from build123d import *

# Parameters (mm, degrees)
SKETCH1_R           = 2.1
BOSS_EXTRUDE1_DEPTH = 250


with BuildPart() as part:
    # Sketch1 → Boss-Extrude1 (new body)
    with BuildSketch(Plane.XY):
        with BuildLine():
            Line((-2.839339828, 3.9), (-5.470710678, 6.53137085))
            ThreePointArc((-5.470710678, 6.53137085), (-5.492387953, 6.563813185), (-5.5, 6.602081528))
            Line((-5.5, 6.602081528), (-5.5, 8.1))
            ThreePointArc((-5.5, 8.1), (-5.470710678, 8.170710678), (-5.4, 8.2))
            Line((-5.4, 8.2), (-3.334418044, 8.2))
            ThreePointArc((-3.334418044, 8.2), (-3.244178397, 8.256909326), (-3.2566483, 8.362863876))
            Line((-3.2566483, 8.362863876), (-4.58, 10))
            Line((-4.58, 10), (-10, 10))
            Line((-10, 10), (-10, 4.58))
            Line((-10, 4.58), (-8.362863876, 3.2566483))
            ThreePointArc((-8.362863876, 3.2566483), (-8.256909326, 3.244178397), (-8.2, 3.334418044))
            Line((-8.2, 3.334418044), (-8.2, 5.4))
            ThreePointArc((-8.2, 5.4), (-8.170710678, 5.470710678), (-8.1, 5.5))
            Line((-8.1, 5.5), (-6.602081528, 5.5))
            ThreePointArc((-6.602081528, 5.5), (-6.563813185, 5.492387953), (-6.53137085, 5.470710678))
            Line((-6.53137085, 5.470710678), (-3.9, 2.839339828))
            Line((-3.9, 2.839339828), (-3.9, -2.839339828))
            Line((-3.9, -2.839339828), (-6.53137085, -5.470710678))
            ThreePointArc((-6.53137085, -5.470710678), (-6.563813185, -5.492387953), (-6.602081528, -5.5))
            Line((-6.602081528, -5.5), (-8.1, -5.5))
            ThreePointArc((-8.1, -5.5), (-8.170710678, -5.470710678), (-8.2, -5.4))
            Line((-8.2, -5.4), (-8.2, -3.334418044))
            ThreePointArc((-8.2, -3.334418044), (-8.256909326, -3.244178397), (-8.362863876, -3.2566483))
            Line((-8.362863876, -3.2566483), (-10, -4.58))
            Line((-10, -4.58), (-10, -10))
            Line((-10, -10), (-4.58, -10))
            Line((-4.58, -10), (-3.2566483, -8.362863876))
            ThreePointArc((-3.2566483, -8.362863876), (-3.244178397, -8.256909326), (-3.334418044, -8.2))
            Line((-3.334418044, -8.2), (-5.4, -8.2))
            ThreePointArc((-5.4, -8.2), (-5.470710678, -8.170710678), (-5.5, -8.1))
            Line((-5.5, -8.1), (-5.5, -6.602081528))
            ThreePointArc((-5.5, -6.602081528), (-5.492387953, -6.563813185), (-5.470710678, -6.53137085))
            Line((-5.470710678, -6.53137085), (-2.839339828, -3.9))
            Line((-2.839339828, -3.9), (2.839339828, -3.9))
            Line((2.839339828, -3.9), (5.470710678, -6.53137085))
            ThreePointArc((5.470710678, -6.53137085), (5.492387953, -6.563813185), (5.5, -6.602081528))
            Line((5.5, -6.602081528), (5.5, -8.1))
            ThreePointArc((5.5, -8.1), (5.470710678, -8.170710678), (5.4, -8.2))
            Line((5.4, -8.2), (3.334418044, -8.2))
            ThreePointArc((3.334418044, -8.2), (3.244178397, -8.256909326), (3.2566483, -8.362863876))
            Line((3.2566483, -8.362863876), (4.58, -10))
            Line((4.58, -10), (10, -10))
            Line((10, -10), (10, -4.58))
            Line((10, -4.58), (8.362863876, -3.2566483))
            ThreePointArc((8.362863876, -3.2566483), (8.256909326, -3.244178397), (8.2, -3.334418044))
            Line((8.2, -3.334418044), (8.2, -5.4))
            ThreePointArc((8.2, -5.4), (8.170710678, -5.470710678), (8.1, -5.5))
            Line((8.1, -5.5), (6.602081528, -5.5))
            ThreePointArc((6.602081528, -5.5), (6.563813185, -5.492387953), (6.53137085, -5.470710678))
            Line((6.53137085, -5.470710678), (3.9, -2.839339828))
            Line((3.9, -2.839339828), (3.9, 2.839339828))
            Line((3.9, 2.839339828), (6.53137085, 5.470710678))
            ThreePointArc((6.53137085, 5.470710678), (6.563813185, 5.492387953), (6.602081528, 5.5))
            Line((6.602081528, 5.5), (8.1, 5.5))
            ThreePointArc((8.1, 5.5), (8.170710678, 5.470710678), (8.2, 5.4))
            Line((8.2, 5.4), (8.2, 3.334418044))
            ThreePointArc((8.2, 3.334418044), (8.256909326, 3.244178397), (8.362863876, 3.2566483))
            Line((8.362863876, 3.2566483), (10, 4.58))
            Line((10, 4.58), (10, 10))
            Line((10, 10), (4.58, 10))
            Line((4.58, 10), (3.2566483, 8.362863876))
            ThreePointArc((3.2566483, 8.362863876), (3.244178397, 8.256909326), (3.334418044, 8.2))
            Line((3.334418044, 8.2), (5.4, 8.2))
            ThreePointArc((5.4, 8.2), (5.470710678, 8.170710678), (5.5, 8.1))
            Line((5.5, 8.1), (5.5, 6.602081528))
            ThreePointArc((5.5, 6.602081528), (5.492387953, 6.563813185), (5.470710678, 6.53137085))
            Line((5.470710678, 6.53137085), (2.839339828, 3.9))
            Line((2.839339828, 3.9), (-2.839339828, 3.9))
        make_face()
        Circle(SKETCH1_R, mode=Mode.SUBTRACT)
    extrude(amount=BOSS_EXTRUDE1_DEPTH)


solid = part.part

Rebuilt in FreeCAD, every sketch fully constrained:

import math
import FreeCAD as App
import Part
import Sketcher

doc = App.newDocument("Part")
body = doc.addObject("PartDesign::Body", "Body")

# Sketch on XY plane
sketch1 = body.newObject("Sketcher::SketchObject", "Sketch")
sketch1.AttachmentSupport = (doc.getObject("XY_Plane"), [""])
sketch1.MapMode = "FlatFace"
sketch1.addGeometry([
    Part.LineSegment(App.Vector(-2.84, 3.9, 0), App.Vector(-5.47, 6.53, 0)),  # 0
    Part.ArcOfCircle(Part.Circle(App.Vector(-5.4, 6.6, 0), App.Vector(0, 0, 1), 0.1), math.radians(-180), math.radians(-135)),  # 1
    Part.LineSegment(App.Vector(-5.5, 6.6, 0), App.Vector(-5.5, 8.1, 0)),  # 2
    Part.ArcOfCircle(Part.Circle(App.Vector(-5.4, 8.1, 0), App.Vector(0, 0, 1), 0.1), math.radians(90), math.radians(180)),  # 3
    Part.LineSegment(App.Vector(-5.4, 8.2, 0), App.Vector(-3.33, 8.2, 0)),  # 4
    Part.ArcOfCircle(Part.Circle(App.Vector(-3.33, 8.3, 0), App.Vector(0, 0, 1), 0.1), math.radians(-90), math.radians(39)),  # 5
    Part.LineSegment(App.Vector(-3.26, 8.36, 0), App.Vector(-4.58, 10, 0)),  # 6
    Part.LineSegment(App.Vector(-4.58, 10, 0), App.Vector(-10, 10, 0)),  # 7
    Part.LineSegment(App.Vector(-10, 10, 0), App.Vector(-10, 4.58, 0)),  # 8
    Part.LineSegment(App.Vector(-10, 4.58, 0), App.Vector(-8.36, 3.26, 0)),  # 9
    Part.ArcOfCircle(Part.Circle(App.Vector(-8.3, 3.33, 0), App.Vector(0, 0, 1), 0.1), math.radians(-129), math.radians(0)),  # 10
    Part.LineSegment(App.Vector(-8.2, 3.33, 0), App.Vector(-8.2, 5.4, 0)),  # 11
    Part.ArcOfCircle(Part.Circle(App.Vector(-8.1, 5.4, 0), App.Vector(0, 0, 1), 0.1), math.radians(90), math.radians(180)),  # 12
    Part.LineSegment(App.Vector(-8.1, 5.5, 0), App.Vector(-6.6, 5.5, 0)),  # 13
    Part.ArcOfCircle(Part.Circle(App.Vector(-6.6, 5.4, 0), App.Vector(0, 0, 1), 0.1), math.radians(45), math.radians(90)),  # 14
    Part.LineSegment(App.Vector(-6.53, 5.47, 0), App.Vector(-3.9, 2.84, 0)),  # 15
    Part.LineSegment(App.Vector(-3.9, 2.84, 0), App.Vector(-3.9, -2.84, 0)),  # 16
    Part.LineSegment(App.Vector(-3.9, -2.84, 0), App.Vector(-6.53, -5.47, 0)),  # 17
    Part.ArcOfCircle(Part.Circle(App.Vector(-6.6, -5.4, 0), App.Vector(0, 0, 1), 0.1), math.radians(-90), math.radians(-45)),  # 18
    Part.LineSegment(App.Vector(-6.6, -5.5, 0), App.Vector(-8.1, -5.5, 0)),  # 19
    Part.ArcOfCircle(Part.Circle(App.Vector(-8.1, -5.4, 0), App.Vector(0, 0, 1), 0.1), math.radians(180), math.radians(270)),  # 20
    Part.LineSegment(App.Vector(-8.2, -5.4, 0), App.Vector(-8.2, -3.33, 0)),  # 21
    Part.ArcOfCircle(Part.Circle(App.Vector(-8.3, -3.33, 0), App.Vector(0, 0, 1), 0.1), math.radians(0), math.radians(129)),  # 22
    Part.LineSegment(App.Vector(-8.36, -3.26, 0), App.Vector(-10, -4.58, 0)),  # 23
    Part.LineSegment(App.Vector(-10, -4.58, 0), App.Vector(-10, -10, 0)),  # 24
    Part.LineSegment(App.Vector(-10, -10, 0), App.Vector(-4.58, -10, 0)),  # 25
    Part.LineSegment(App.Vector(-4.58, -10, 0), App.Vector(-3.26, -8.36, 0)),  # 26
    Part.ArcOfCircle(Part.Circle(App.Vector(-3.33, -8.3, 0), App.Vector(0, 0, 1), 0.1), math.radians(-39), math.radians(90)),  # 27
    Part.LineSegment(App.Vector(-3.33, -8.2, 0), App.Vector(-5.4, -8.2, 0)),  # 28
    Part.ArcOfCircle(Part.Circle(App.Vector(-5.4, -8.1, 0), App.Vector(0, 0, 1), 0.1), math.radians(180), math.radians(270)),  # 29
    Part.LineSegment(App.Vector(-5.5, -8.1, 0), App.Vector(-5.5, -6.6, 0)),  # 30
    Part.ArcOfCircle(Part.Circle(App.Vector(-5.4, -6.6, 0), App.Vector(0, 0, 1), 0.1), math.radians(135), math.radians(180)),  # 31
    Part.LineSegment(App.Vector(-5.47, -6.53, 0), App.Vector(-2.84, -3.9, 0)),  # 32
    Part.LineSegment(App.Vector(-2.84, -3.9, 0), App.Vector(2.84, -3.9, 0)),  # 33
    Part.LineSegment(App.Vector(2.84, -3.9, 0), App.Vector(5.47, -6.53, 0)),  # 34
    Part.ArcOfCircle(Part.Circle(App.Vector(5.4, -6.6, 0), App.Vector(0, 0, 1), 0.1), math.radians(0), math.radians(45)),  # 35
    Part.LineSegment(App.Vector(5.5, -6.6, 0), App.Vector(5.5, -8.1, 0)),  # 36
    Part.ArcOfCircle(Part.Circle(App.Vector(5.4, -8.1, 0), App.Vector(0, 0, 1), 0.1), math.radians(-90), math.radians(0)),  # 37
    Part.LineSegment(App.Vector(5.4, -8.2, 0), App.Vector(3.33, -8.2, 0)),  # 38
    Part.ArcOfCircle(Part.Circle(App.Vector(3.33, -8.3, 0), App.Vector(0, 0, 1), 0.1), math.radians(90), math.radians(219)),  # 39
    Part.LineSegment(App.Vector(3.26, -8.36, 0), App.Vector(4.58, -10, 0)),  # 40
    Part.LineSegment(App.Vector(4.58, -10, 0), App.Vector(10, -10, 0)),  # 41
    Part.LineSegment(App.Vector(10, -10, 0), App.Vector(10, -4.58, 0)),  # 42
    Part.LineSegment(App.Vector(10, -4.58, 0), App.Vector(8.36, -3.26, 0)),  # 43
    Part.ArcOfCircle(Part.Circle(App.Vector(8.3, -3.33, 0), App.Vector(0, 0, 1), 0.1), math.radians(51), math.radians(180)),  # 44
    Part.LineSegment(App.Vector(8.2, -3.33, 0), App.Vector(8.2, -5.4, 0)),  # 45
    Part.ArcOfCircle(Part.Circle(App.Vector(8.1, -5.4, 0), App.Vector(0, 0, 1), 0.1), math.radians(-90), math.radians(0)),  # 46
    Part.LineSegment(App.Vector(8.1, -5.5, 0), App.Vector(6.6, -5.5, 0)),  # 47
    Part.ArcOfCircle(Part.Circle(App.Vector(6.6, -5.4, 0), App.Vector(0, 0, 1), 0.1), math.radians(-135), math.radians(-90)),  # 48
    Part.LineSegment(App.Vector(6.53, -5.47, 0), App.Vector(3.9, -2.84, 0)),  # 49
    Part.LineSegment(App.Vector(3.9, -2.84, 0), App.Vector(3.9, 2.84, 0)),  # 50
    Part.LineSegment(App.Vector(3.9, 2.84, 0), App.Vector(6.53, 5.47, 0)),  # 51
    Part.ArcOfCircle(Part.Circle(App.Vector(6.6, 5.4, 0), App.Vector(0, 0, 1), 0.1), math.radians(90), math.radians(135)),  # 52
    Part.LineSegment(App.Vector(6.6, 5.5, 0), App.Vector(8.1, 5.5, 0)),  # 53
    Part.ArcOfCircle(Part.Circle(App.Vector(8.1, 5.4, 0), App.Vector(0, 0, 1), 0.1), math.radians(0), math.radians(90)),  # 54
    Part.LineSegment(App.Vector(8.2, 5.4, 0), App.Vector(8.2, 3.33, 0)),  # 55
    Part.ArcOfCircle(Part.Circle(App.Vector(8.3, 3.33, 0), App.Vector(0, 0, 1), 0.1), math.radians(180), math.radians(309)),  # 56
    Part.LineSegment(App.Vector(8.36, 3.26, 0), App.Vector(10, 4.58, 0)),  # 57
    Part.LineSegment(App.Vector(10, 4.58, 0), App.Vector(10, 10, 0)),  # 58
    Part.LineSegment(App.Vector(10, 10, 0), App.Vector(4.58, 10, 0)),  # 59
    Part.LineSegment(App.Vector(4.58, 10, 0), App.Vector(3.26, 8.36, 0)),  # 60
    Part.ArcOfCircle(Part.Circle(App.Vector(3.33, 8.3, 0), App.Vector(0, 0, 1), 0.1), math.radians(141), math.radians(270)),  # 61
    Part.LineSegment(App.Vector(3.33, 8.2, 0), App.Vector(5.4, 8.2, 0)),  # 62
    Part.ArcOfCircle(Part.Circle(App.Vector(5.4, 8.1, 0), App.Vector(0, 0, 1), 0.1), math.radians(0), math.radians(90)),  # 63
    Part.LineSegment(App.Vector(5.5, 8.1, 0), App.Vector(5.5, 6.6, 0)),  # 64
    Part.ArcOfCircle(Part.Circle(App.Vector(5.4, 6.6, 0), App.Vector(0, 0, 1), 0.1), math.radians(-45), math.radians(0)),  # 65
    Part.LineSegment(App.Vector(5.47, 6.53, 0), App.Vector(2.84, 3.9, 0)),  # 66
    Part.LineSegment(App.Vector(2.84, 3.9, 0), App.Vector(-2.84, 3.9, 0)),  # 67
    Part.Circle(App.Vector(0, 0, 0), App.Vector(0, 0, 1), 2.1),  # 68
], False)
sketch1.addConstraint([
    Sketcher.Constraint("Tangent", 0, 2, 1, 2),
    Sketcher.Constraint("Tangent", 1, 1, 2, 1),
    Sketcher.Constraint("Tangent", 2, 2, 3, 2),
    Sketcher.Constraint("Tangent", 3, 1, 4, 1),
    Sketcher.Constraint("Tangent", 4, 2, 5, 1),
    Sketcher.Constraint("Tangent", 5, 2, 6, 1),
    Sketcher.Constraint("Coincident", 6, 2, 7, 1),
    Sketcher.Constraint("Coincident", 7, 2, 8, 1),
    Sketcher.Constraint("Coincident", 8, 2, 9, 1),
    Sketcher.Constraint("Tangent", 9, 2, 10, 1),
    Sketcher.Constraint("Tangent", 10, 2, 11, 1),
    Sketcher.Constraint("Tangent", 11, 2, 12, 2),
    Sketcher.Constraint("Tangent", 12, 1, 13, 1),
    Sketcher.Constraint("Tangent", 13, 2, 14, 2),
    Sketcher.Constraint("Tangent", 14, 1, 15, 1),
    Sketcher.Constraint("Coincident", 15, 2, 16, 1),
    Sketcher.Constraint("Coincident", 16, 2, 17, 1),
    Sketcher.Constraint("Tangent", 17, 2, 18, 2),
    Sketcher.Constraint("Tangent", 18, 1, 19, 1),
    Sketcher.Constraint("Tangent", 19, 2, 20, 2),
    Sketcher.Constraint("Tangent", 20, 1, 21, 1),
    Sketcher.Constraint("Tangent", 21, 2, 22, 1),
    Sketcher.Constraint("Tangent", 22, 2, 23, 1),
    Sketcher.Constraint("Coincident", 23, 2, 24, 1),
    Sketcher.Constraint("Coincident", 24, 2, 25, 1),
    Sketcher.Constraint("Coincident", 25, 2, 26, 1),
    Sketcher.Constraint("Tangent", 26, 2, 27, 1),
    Sketcher.Constraint("Tangent", 27, 2, 28, 1),
    Sketcher.Constraint("Tangent", 28, 2, 29, 2),
    Sketcher.Constraint("Tangent", 29, 1, 30, 1),
    Sketcher.Constraint("Tangent", 30, 2, 31, 2),
    Sketcher.Constraint("Tangent", 31, 1, 32, 1),
    Sketcher.Constraint("Coincident", 32, 2, 33, 1),
    Sketcher.Constraint("Coincident", 33, 2, 34, 1),
    Sketcher.Constraint("Tangent", 34, 2, 35, 2),
    Sketcher.Constraint("Tangent", 35, 1, 36, 1),
    Sketcher.Constraint("Tangent", 36, 2, 37, 2),
    Sketcher.Constraint("Tangent", 37, 1, 38, 1),
    Sketcher.Constraint("Tangent", 38, 2, 39, 1),
    Sketcher.Constraint("Tangent", 39, 2, 40, 1),
    Sketcher.Constraint("Coincident", 40, 2, 41, 1),
    Sketcher.Constraint("Coincident", 41, 2, 42, 1),
    Sketcher.Constraint("Coincident", 42, 2, 43, 1),
    Sketcher.Constraint("Tangent", 43, 2, 44, 1),
    Sketcher.Constraint("Tangent", 44, 2, 45, 1),
    Sketcher.Constraint("Tangent", 45, 2, 46, 2),
    Sketcher.Constraint("Tangent", 46, 1, 47, 1),
    Sketcher.Constraint("Tangent", 47, 2, 48, 2),
    Sketcher.Constraint("Tangent", 48, 1, 49, 1),
    Sketcher.Constraint("Coincident", 49, 2, 50, 1),
    Sketcher.Constraint("Coincident", 50, 2, 51, 1),
    Sketcher.Constraint("Tangent", 51, 2, 52, 2),
    Sketcher.Constraint("Tangent", 52, 1, 53, 1),
    Sketcher.Constraint("Tangent", 53, 2, 54, 2),
    Sketcher.Constraint("Tangent", 54, 1, 55, 1),
    Sketcher.Constraint("Tangent", 55, 2, 56, 1),
    Sketcher.Constraint("Tangent", 56, 2, 57, 1),
    Sketcher.Constraint("Coincident", 57, 2, 58, 1),
    Sketcher.Constraint("Coincident", 58, 2, 59, 1),
    Sketcher.Constraint("Coincident", 59, 2, 60, 1),
    Sketcher.Constraint("Tangent", 60, 2, 61, 1),
    Sketcher.Constraint("Tangent", 61, 2, 62, 1),
    Sketcher.Constraint("Tangent", 62, 2, 63, 2),
    Sketcher.Constraint("Tangent", 63, 1, 64, 1),
    Sketcher.Constraint("Tangent", 64, 2, 65, 2),
    Sketcher.Constraint("Tangent", 65, 1, 66, 1),
    Sketcher.Constraint("Coincident", 66, 2, 67, 1),
    Sketcher.Constraint("Coincident", 67, 2, 0, 1),
    Sketcher.Constraint("Vertical", 2),
    Sketcher.Constraint("Horizontal", 4),
    Sketcher.Constraint("Horizontal", 7),
    Sketcher.Constraint("Vertical", 8),
    Sketcher.Constraint("Vertical", 11),
    Sketcher.Constraint("Horizontal", 13),
    Sketcher.Constraint("Vertical", 16),
    Sketcher.Constraint("Horizontal", 19),
    Sketcher.Constraint("Vertical", 21),
    Sketcher.Constraint("Vertical", 24),
    Sketcher.Constraint("Horizontal", 25),
    Sketcher.Constraint("Horizontal", 28),
    Sketcher.Constraint("Vertical", 30),
    Sketcher.Constraint("Horizontal", 33),
    Sketcher.Constraint("Vertical", 36),
    Sketcher.Constraint("Horizontal", 38),
    Sketcher.Constraint("Horizontal", 41),
    Sketcher.Constraint("Vertical", 42),
    Sketcher.Constraint("Vertical", 45),
    Sketcher.Constraint("Horizontal", 47),
    Sketcher.Constraint("Vertical", 50),
    Sketcher.Constraint("Horizontal", 53),
    Sketcher.Constraint("Vertical", 55),
    Sketcher.Constraint("Vertical", 58),
    Sketcher.Constraint("Horizontal", 59),
    Sketcher.Constraint("Horizontal", 62),
    Sketcher.Constraint("Vertical", 64),
    Sketcher.Constraint("Horizontal", 67),
    Sketcher.Constraint("Coincident", 68, 3, -1, 1),
    Sketcher.Constraint("Equal", 1, 3),
    Sketcher.Constraint("Equal", 3, 5),
    Sketcher.Constraint("Equal", 5, 10),
    Sketcher.Constraint("Equal", 10, 12),
    Sketcher.Constraint("Equal", 12, 14),
    Sketcher.Constraint("Equal", 14, 18),
    Sketcher.Constraint("Equal", 18, 20),
    Sketcher.Constraint("Equal", 20, 22),
    Sketcher.Constraint("Equal", 22, 27),
    Sketcher.Constraint("Equal", 27, 29),
    Sketcher.Constraint("Equal", 29, 31),
    Sketcher.Constraint("Equal", 31, 35),
    Sketcher.Constraint("Equal", 35, 37),
    Sketcher.Constraint("Equal", 37, 39),
    Sketcher.Constraint("Equal", 39, 44),
    Sketcher.Constraint("Equal", 44, 46),
    Sketcher.Constraint("Equal", 46, 48),
    Sketcher.Constraint("Equal", 48, 52),
    Sketcher.Constraint("Equal", 52, 54),
    Sketcher.Constraint("Equal", 54, 56),
    Sketcher.Constraint("Equal", 56, 61),
    Sketcher.Constraint("Equal", 61, 63),
    Sketcher.Constraint("Equal", 63, 65),
    Sketcher.Constraint("Symmetric", 1, 3, 35, 3, -1, 1),
    Sketcher.Constraint("Symmetric", 5, 3, 39, 3, -1, 1),
    Sketcher.Constraint("Symmetric", 10, 3, 44, 3, -1, 1),
    Sketcher.Constraint("Symmetric", 14, 3, 48, 3, -1, 1),
    Sketcher.Constraint("Symmetric", 18, 3, 52, 3, -1, 1),
    Sketcher.Constraint("Symmetric", 22, 3, 56, 3, -1, 1),
    Sketcher.Constraint("Symmetric", 27, 3, 61, 3, -1, 1),
    Sketcher.Constraint("Symmetric", 31, 3, 65, 3, -1, 1),
    Sketcher.Constraint("Symmetric", 6, 2, 40, 2, -1, 1),
    Sketcher.Constraint("Symmetric", 8, 2, 42, 2, -1, 1),
    Sketcher.Constraint("Symmetric", 15, 2, 49, 2, -1, 1),
    Sketcher.Constraint("Symmetric", 23, 2, 57, 2, -1, 1),
    Sketcher.Constraint("Symmetric", 25, 2, 59, 2, -1, 1),
    Sketcher.Constraint("Symmetric", 32, 2, 66, 2, -1, 1),
    Sketcher.Constraint("Symmetric", 31, 3, 35, 3, -2),
    Sketcher.Constraint("Symmetric", 27, 3, 39, 3, -2),
    Sketcher.Constraint("Symmetric", 22, 3, 44, 3, -2),
    Sketcher.Constraint("Symmetric", 18, 3, 48, 3, -2),
    Sketcher.Constraint("Symmetric", 25, 2, 40, 2, -2),
    Sketcher.Constraint("Symmetric", 23, 2, 42, 2, -2),
    Sketcher.Constraint("Parallel", 0, 15),
    Sketcher.Constraint("Perpendicular", 15, 17),
    Sketcher.Constraint("Perpendicular", 6, 23),
    Sketcher.Constraint("Parallel", 17, 32),
    Sketcher.Constraint("Perpendicular", 32, 34),
    Sketcher.Constraint("Perpendicular", 49, 51),
    Sketcher.Constraint("Horizontal", 31, 1, 34, 2),
    Sketcher.Constraint("Equal", 53, 2),
    Sketcher.Constraint("Equal", 59, 8),
    Sketcher.Constraint("Equal", 62, 11),
    Sketcher.Constraint("Equal", 67, 16),
    Sketcher.Constraint("Equal", 6, 9),
    Sketcher.Constraint("Equal", 0, 15),
    Sketcher.Constraint("Diameter", 68, 4.2),
    Sketcher.Constraint("Radius", 1, 0.1),
    Sketcher.Constraint("DistanceY", -1, 1, 6, 2, 10.0),
    Sketcher.Constraint("DistanceX", 7, 2, 7, 1, 5.42),
    Sketcher.Constraint("DistanceX", 1, 3, -1, 1, 5.4),
    Sketcher.Constraint("DistanceY", -1, 1, 3, 3, 8.1),
    Sketcher.Constraint("DistanceX", 15, 2, -1, 1, 3.9),
    Sketcher.Constraint("DistanceX", 4, 1, 4, 2, 2.065582),
    Sketcher.Constraint("DistanceX", 13, 1, 13, 2, 1.497918),
])
pad1 = body.newObject("PartDesign::Pad", "Pad")
pad1.Profile = sketch1
pad1.Length = 250

doc.recompute()
